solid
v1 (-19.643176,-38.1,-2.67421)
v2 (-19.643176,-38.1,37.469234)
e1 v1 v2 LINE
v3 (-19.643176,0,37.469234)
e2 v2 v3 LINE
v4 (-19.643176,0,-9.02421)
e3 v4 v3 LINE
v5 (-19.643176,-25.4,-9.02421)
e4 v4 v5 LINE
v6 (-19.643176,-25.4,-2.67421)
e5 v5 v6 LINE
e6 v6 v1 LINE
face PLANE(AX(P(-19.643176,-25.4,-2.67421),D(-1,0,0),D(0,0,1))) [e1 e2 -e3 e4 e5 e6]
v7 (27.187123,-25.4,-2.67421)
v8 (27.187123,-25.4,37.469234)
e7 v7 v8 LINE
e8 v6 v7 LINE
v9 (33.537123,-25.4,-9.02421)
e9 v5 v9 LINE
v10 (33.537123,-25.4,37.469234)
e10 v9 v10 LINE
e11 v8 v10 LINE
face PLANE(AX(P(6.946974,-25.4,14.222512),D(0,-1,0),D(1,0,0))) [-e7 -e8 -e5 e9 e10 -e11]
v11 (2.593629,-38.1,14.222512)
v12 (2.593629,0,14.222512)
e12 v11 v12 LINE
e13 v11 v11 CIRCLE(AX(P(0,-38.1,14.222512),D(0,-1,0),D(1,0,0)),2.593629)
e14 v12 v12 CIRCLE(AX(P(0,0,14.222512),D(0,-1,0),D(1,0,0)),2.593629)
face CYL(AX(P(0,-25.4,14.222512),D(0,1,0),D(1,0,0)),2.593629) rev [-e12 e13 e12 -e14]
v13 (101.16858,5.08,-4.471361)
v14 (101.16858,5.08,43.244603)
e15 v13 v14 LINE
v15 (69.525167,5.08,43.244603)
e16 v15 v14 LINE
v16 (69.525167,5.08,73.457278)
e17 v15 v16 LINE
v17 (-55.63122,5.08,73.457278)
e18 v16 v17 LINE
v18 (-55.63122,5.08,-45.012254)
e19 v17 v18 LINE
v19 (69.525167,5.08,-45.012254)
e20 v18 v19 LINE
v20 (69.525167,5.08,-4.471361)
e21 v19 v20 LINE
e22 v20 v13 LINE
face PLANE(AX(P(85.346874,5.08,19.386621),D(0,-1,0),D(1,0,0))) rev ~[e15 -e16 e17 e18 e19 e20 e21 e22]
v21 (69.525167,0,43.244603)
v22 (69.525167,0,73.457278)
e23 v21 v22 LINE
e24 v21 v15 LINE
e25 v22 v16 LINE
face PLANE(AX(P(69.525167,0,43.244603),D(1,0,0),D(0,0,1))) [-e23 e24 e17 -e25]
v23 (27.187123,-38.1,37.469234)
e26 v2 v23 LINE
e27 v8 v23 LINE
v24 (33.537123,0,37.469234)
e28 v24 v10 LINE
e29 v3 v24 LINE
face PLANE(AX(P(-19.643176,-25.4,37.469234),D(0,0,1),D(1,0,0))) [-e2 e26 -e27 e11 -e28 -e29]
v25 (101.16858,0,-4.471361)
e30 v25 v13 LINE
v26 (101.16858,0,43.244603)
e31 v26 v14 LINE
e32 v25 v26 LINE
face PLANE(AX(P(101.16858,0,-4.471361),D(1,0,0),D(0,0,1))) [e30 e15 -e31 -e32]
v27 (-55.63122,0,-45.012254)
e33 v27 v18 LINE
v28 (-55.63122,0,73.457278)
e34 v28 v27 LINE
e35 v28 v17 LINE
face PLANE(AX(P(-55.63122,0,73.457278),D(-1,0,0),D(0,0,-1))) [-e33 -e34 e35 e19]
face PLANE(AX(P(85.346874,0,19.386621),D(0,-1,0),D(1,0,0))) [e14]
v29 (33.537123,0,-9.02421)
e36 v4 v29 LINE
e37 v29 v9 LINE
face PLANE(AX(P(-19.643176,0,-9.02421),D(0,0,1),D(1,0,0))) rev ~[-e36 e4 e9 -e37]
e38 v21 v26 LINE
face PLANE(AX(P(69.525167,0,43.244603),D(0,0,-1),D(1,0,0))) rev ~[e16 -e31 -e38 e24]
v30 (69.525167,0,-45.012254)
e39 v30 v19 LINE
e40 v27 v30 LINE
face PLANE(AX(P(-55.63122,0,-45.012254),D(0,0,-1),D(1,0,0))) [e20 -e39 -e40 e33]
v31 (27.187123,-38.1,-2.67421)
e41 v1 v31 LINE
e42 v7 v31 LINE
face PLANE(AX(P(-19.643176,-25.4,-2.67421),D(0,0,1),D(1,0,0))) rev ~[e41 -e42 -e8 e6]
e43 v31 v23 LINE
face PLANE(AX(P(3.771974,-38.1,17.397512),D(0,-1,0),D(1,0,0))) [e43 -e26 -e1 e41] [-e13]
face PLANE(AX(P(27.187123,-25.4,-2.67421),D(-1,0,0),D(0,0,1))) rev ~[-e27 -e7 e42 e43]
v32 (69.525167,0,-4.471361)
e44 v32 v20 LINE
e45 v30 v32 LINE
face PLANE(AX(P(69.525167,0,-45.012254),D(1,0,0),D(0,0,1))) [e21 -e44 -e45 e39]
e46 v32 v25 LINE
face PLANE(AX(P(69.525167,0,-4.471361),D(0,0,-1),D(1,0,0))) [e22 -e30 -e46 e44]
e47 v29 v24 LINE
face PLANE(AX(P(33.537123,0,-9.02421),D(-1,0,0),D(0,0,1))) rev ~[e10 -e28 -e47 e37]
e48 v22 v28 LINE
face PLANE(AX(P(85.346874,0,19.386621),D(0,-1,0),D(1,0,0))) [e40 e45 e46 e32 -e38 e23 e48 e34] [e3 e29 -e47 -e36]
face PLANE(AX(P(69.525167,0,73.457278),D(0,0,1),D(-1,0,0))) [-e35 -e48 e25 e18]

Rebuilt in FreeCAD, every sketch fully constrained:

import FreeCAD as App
import Part
import Sketcher

V = App.Vector
Q = App.Units.Quantity


def add_polygon(sketch, points):
    """Adds a closed chain of lines whose ends are joined by coincident constraints."""
    first, n = sketch.GeometryCount, len(points)
    for a, b in zip(points, points[1:] + points[:1]):
        sketch.addGeometry(Part.LineSegment(App.Vector(*a, 0), App.Vector(*b, 0)), False)
    for i in range(n):
        sketch.addConstraint(Sketcher.Constraint("Coincident", first + i, 2, first + (i + 1) % n, 1))

doc = App.newDocument("Part")
body = doc.addObject("PartDesign::Body", "Body")

# Sketch on XZ plane
sketch1 = doc.addObject("Sketcher::SketchObject", "Sketch")
body.addObject(sketch1)
sketch1.AttachmentSupport = (doc.XZ_Plane, [""])
sketch1.MapMode = "FlatFace"
add_polygon(sketch1, [(-19.6, 37.5), (-19.6, -9), (33.5, -9), (33.5, 37.5)])  # lines 0-3
sketch1.addGeometry(Part.Circle(V(0, 14.2, 0), V(0, 0, 1), 2.6), False)  # 4
sketch1.addConstraint([
    Sketcher.Constraint("Vertical", 0),
    Sketcher.Constraint("Horizontal", 1),
    Sketcher.Constraint("Vertical", 2),
    Sketcher.Constraint("Horizontal", 3),
    Sketcher.Constraint("PointOnObject", 4, 3, -2),
    Sketcher.Constraint("Diameter", 4, Q("5.187259 mm")),
    Sketcher.Constraint("DistanceX", 1, 1, 1, 2, Q("53.1803 mm")),
    Sketcher.Constraint("DistanceY", 0, 2, 0, 1, Q("46.493445 mm")),
    Sketcher.Constraint("DistanceY", 0, 2, -1, 1, Q("9.02421 mm")),
    Sketcher.Constraint("DistanceY", -1, 1, 4, 3, Q("14.222512 mm")),
    Sketcher.Constraint("DistanceX", 0, 2, -1, 1, Q("19.643176 mm")),
])
pad1 = doc.addObject("PartDesign::Pad", "Pad")
body.addObject(pad1)
pad1.Profile = sketch1
pad1.Length = Q("1 in")

# Sketch on XZ plane
sketch2 = doc.addObject("Sketcher::SketchObject", "Sketch001")
body.addObject(sketch2)
sketch2.AttachmentSupport = (doc.XZ_Plane, [""])
sketch2.MapMode = "FlatFace"
sketch2.AttachmentOffset = App.Placement(V(0, 0, 1 * 25.4), App.Rotation())
add_polygon(sketch2, [(-19.6, 37.5), (-19.6, -2.7), (27.2, -2.7), (27.2, 37.5)])  # lines 0-3
sketch2.addGeometry(Part.Circle(V(0, 14.2, 0), V(0, 0, 1), 2.6), False)  # 4
sketch2.addConstraint([
    Sketcher.Constraint("Vertical", 0),
    Sketcher.Constraint("Horizontal", 1),
    Sketcher.Constraint("Vertical", 2),
    Sketcher.Constraint("Horizontal", 3),
    Sketcher.Constraint("PointOnObject", 4, 3, -2),
    Sketcher.Constraint("Diameter", 4, Q("5.187259 mm")),
    Sketcher.Constraint("DistanceX", 1, 1, 1, 2, Q("46.8303 mm")),
    Sketcher.Constraint("DistanceY", 0, 2, 0, 1, Q("40.143445 mm")),
    Sketcher.Constraint("DistanceY", 0, 2, -1, 1, Q("2.67421 mm")),
    Sketcher.Constraint("DistanceY", -1, 1, 4, 3, Q("14.222512 mm")),
    Sketcher.Constraint("DistanceX", 0, 2, -1, 1, Q("19.643176 mm")),
])
pad2 = doc.addObject("PartDesign::Pad", "Pad001")
body.addObject(pad2)
pad2.Profile = sketch2
pad2.Length = Q("0.5 in")

# Sketch on XZ plane
sketch3 = doc.addObject("Sketcher::SketchObject", "Sketch002")
body.addObject(sketch3)
sketch3.AttachmentSupport = (doc.XZ_Plane, [""])
sketch3.MapMode = "FlatFace"
add_polygon(sketch3, [(70, -4), (101, -4), (101, 43), (70, 43), (70, 73), (-56, 73), (-56, -45), (70, -45)])  # lines 0-7
sketch3.addConstraint([
    Sketcher.Constraint("Horizontal", 0),
    Sketcher.Constraint("Vertical", 1),
    Sketcher.Constraint("Horizontal", 2),
    Sketcher.Constraint("Vertical", 3),
    Sketcher.Constraint("Horizontal", 4),
    Sketcher.Constraint("Vertical", 5),
    Sketcher.Constraint("Horizontal", 6),
    Sketcher.Constraint("Vertical", 7),
    Sketcher.Constraint("Vertical", 3, 2, 6, 2),
    Sketcher.Constraint("DistanceX", 4, 2, 1, 2, Q("156.799801 mm")),
    Sketcher.Constraint("DistanceX", 0, 1, 0, 2, Q("31.643413 mm")),
    Sketcher.Constraint("DistanceY", 1, 1, 1, 2, Q("47.715964 mm")),
    Sketcher.Constraint("DistanceY", 3, 1, 3, 2, Q("30.212675 mm")),
    Sketcher.Constraint("DistanceY", 5, 2, 5, 1, Q("118.469533 mm")),
    Sketcher.Constraint("DistanceX", -1, 1, 0, 2, Q("101.16858 mm")),
    Sketcher.Constraint("DistanceY", 0, 2, -1, 1, Q("4.471361 mm")),
])
pad3 = doc.addObject("PartDesign::Pad", "Pad002")
body.addObject(pad3)
pad3.Profile = sketch3
pad3.Length = Q("0.2 in")
pad3.Reversed = True
body2 = doc.addObject("PartDesign::Body", "Body001")

# Sketch on XZ plane
sketch4 = doc.addObject("Sketcher::SketchObject", "Sketch003")
body2.addObject(sketch4)
sketch4.AttachmentSupport = (doc.getObject("XZ_Plane001"), [""])
sketch4.MapMode = "FlatFace"
add_polygon(sketch4, [(108, 6), (108, -3), (116, -3), (116, 6)])  # lines 0-3
sketch4.addConstraint([
    Sketcher.Constraint("Vertical", 0),
    Sketcher.Constraint("Horizontal", 1),
    Sketcher.Constraint("Vertical", 2),
    Sketcher.Constraint("Horizontal", 3),
    Sketcher.Constraint("DistanceX", 1, 1, 1, 2, Q("7.846877 mm")),
    Sketcher.Constraint("DistanceY", 0, 2, 0, 1, Q("9.748225 mm")),
    Sketcher.Constraint("DistanceX", -1, 1, 1, 2, Q("115.74135 mm")),
    Sketcher.Constraint("DistanceY", -1, 1, 2, 2, Q("6.404068 mm")),
])
pad4 = doc.addObject("PartDesign::Pad", "Pad003")
body2.addObject(pad4)
pad4.Profile = sketch4
pad4.Length = Q("0.2 in")
pad4.Reversed = True
body2.Visibility = False

doc.recompute()
